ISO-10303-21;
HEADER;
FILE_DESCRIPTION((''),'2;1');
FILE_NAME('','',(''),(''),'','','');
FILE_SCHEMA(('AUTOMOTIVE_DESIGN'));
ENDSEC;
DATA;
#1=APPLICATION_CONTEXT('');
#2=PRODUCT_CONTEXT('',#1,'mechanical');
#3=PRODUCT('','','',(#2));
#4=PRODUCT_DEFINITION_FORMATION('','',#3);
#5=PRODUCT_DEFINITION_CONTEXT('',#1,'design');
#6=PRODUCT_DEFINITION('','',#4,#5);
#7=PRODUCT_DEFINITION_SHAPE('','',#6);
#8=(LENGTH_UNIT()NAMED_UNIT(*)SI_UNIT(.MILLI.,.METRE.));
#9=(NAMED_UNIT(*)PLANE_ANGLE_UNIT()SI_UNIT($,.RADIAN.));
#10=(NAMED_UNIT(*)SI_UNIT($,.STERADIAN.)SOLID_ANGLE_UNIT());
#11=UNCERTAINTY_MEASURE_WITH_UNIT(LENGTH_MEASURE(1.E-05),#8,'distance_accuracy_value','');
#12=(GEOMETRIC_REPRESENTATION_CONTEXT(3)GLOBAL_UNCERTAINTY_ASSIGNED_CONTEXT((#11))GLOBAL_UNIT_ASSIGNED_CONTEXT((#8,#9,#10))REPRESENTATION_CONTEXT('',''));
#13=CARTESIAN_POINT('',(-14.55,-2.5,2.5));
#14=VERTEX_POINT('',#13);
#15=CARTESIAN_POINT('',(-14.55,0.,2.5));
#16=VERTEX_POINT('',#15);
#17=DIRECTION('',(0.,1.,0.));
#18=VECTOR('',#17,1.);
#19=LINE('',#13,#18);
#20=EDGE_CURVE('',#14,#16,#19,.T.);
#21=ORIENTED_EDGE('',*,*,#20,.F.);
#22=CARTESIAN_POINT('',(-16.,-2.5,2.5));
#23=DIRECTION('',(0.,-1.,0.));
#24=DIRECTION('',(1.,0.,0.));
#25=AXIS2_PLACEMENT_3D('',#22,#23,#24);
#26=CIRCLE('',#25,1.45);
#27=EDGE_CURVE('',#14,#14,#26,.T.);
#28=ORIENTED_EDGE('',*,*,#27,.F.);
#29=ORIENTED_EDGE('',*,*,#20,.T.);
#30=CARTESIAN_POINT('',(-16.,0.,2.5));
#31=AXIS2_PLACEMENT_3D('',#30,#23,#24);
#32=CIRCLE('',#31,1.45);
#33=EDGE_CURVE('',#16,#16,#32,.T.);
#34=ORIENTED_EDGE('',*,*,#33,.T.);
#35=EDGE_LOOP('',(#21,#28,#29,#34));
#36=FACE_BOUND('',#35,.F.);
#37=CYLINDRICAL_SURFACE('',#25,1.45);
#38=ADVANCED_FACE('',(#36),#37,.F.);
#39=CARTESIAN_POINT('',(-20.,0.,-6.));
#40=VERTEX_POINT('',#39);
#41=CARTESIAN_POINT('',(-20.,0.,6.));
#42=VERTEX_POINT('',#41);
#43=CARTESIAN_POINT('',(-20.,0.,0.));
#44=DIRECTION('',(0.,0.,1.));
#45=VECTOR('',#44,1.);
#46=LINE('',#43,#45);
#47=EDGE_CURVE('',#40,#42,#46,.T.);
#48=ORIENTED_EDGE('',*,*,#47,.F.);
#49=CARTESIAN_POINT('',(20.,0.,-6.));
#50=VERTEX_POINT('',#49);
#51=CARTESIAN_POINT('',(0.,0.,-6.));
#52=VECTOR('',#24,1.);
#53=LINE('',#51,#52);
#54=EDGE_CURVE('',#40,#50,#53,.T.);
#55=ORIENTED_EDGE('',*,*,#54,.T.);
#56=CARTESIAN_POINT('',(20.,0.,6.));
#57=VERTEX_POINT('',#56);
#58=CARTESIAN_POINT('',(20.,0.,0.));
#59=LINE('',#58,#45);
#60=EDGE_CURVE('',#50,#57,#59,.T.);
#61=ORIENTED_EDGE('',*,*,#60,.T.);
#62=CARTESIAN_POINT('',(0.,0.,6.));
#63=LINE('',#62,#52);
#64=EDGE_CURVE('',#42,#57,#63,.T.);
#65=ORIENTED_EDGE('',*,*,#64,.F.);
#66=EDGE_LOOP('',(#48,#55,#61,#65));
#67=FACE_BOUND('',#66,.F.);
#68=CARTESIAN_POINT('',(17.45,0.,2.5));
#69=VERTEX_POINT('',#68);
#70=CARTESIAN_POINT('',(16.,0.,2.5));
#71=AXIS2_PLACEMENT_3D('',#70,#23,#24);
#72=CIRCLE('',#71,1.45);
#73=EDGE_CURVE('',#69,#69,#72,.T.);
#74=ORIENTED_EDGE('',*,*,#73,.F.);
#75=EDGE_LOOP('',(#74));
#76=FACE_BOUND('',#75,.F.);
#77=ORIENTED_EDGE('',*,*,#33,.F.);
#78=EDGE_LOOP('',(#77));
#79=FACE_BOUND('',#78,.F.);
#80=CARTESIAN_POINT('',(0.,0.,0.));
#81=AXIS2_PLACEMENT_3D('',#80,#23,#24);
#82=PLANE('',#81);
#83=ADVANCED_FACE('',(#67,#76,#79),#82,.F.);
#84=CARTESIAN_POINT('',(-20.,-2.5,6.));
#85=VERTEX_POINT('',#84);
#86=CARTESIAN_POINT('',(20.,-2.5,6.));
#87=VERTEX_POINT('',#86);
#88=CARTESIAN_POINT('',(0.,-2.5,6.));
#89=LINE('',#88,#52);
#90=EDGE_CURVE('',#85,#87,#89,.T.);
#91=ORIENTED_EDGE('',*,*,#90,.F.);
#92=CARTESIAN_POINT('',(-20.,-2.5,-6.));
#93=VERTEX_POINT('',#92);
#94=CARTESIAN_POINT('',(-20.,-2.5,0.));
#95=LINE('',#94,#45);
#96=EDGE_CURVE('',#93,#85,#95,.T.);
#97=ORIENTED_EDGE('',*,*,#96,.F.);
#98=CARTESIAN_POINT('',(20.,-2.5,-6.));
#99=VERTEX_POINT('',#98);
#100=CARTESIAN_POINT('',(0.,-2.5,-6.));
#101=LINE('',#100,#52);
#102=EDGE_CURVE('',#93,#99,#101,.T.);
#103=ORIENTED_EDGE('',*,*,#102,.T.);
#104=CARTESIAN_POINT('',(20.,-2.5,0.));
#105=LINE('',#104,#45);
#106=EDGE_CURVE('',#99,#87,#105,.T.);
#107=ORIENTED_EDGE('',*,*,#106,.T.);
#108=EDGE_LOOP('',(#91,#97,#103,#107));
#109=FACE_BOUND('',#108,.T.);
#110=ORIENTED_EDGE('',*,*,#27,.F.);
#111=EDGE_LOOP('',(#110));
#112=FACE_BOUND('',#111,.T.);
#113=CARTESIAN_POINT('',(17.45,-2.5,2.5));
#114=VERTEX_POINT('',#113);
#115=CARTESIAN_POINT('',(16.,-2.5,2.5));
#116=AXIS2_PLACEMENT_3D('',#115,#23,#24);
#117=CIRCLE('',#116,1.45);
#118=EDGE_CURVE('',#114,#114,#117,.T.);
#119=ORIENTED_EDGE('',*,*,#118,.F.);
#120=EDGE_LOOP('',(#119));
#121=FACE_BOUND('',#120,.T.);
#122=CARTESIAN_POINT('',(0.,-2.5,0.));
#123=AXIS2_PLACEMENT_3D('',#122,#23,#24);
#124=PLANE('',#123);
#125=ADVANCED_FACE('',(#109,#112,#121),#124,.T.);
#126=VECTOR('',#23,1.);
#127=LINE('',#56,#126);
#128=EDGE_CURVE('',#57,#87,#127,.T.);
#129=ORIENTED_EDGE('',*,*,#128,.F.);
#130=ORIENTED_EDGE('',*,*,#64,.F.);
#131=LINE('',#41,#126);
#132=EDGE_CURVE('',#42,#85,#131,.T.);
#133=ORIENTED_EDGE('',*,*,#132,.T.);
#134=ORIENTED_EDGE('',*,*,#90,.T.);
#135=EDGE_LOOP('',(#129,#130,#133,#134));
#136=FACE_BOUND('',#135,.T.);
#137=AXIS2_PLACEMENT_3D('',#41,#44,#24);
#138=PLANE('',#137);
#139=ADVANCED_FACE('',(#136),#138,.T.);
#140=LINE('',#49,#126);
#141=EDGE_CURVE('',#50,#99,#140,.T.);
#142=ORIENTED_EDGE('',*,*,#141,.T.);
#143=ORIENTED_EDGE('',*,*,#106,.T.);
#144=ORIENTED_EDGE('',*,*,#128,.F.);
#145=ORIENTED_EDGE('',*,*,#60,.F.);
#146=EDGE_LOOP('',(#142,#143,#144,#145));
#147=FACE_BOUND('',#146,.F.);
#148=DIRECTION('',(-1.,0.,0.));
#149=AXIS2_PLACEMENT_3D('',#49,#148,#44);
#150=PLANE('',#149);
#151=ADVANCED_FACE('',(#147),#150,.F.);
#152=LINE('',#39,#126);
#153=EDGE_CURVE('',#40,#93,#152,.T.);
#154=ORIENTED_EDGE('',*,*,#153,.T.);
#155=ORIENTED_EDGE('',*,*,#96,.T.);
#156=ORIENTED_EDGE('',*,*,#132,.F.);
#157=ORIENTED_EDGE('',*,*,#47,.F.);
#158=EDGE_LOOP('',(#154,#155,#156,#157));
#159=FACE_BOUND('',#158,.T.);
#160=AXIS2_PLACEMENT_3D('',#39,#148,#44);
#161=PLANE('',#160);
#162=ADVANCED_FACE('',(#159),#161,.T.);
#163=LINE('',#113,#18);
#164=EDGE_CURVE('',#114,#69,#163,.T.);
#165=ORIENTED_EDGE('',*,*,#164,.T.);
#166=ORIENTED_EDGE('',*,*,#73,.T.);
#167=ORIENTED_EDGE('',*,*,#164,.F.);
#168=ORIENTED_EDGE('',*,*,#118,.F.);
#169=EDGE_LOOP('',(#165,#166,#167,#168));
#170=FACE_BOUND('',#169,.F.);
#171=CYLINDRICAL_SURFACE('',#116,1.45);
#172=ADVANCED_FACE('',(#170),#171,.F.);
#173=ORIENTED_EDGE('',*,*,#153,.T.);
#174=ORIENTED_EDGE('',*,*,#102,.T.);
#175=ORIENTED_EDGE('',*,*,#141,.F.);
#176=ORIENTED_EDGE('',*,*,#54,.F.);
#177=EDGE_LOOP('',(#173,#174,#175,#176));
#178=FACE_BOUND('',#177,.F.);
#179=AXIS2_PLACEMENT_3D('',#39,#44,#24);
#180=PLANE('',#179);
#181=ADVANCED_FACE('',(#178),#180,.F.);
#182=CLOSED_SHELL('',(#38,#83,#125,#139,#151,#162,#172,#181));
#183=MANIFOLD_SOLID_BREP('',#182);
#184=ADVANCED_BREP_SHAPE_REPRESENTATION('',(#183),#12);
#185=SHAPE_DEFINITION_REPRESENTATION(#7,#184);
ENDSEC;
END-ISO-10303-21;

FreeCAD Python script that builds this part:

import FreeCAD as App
import Part
import Sketcher

doc = App.newDocument("Part")
body = doc.addObject("PartDesign::Body", "Body")

# Sketch on XZ plane
sketch1 = doc.addObject("Sketcher::SketchObject", "Sketch")
body.addObject(sketch1)
sketch1.AttachmentSupport = (doc.XZ_Plane, [""])
sketch1.MapMode = "FlatFace"
sketch1.addGeometry([
    Part.LineSegment(App.Vector(-20, 6, 0), App.Vector(-20, -6, 0)),
    Part.LineSegment(App.Vector(-20, -6, 0), App.Vector(20, -6, 0)),
    Part.LineSegment(App.Vector(20, -6, 0), App.Vector(20, 6, 0)),
    Part.LineSegment(App.Vector(20, 6, 0), App.Vector(-20, 6, 0)),
], False)
sketch1.addConstraint([
    Sketcher.Constraint("Coincident", 0, 2, 1, 1),
    Sketcher.Constraint("Coincident", 1, 2, 2, 1),
    Sketcher.Constraint("Coincident", 2, 2, 3, 1),
    Sketcher.Constraint("Coincident", 3, 2, 0, 1),
    Sketcher.Constraint("Vertical", 0),
    Sketcher.Constraint("Horizontal", 1),
    Sketcher.Constraint("Vertical", 2),
    Sketcher.Constraint("Horizontal", 3),
    Sketcher.Constraint("Symmetric", 0, 2, 2, 2, -1, 1),
    Sketcher.Constraint("DistanceX", 1, 1, 1, 2, 40.0),
    Sketcher.Constraint("DistanceY", 0, 2, 0, 1, 12.0),
])
pad1 = doc.addObject("PartDesign::Pad", "Pad")
body.addObject(pad1)
pad1.Profile = sketch1
pad1.Length = 2.5

# Sketch on XZ plane
sketch2 = doc.addObject("Sketcher::SketchObject", "Sketch001")
body.addObject(sketch2)
sketch2.AttachmentSupport = (doc.XZ_Plane, [""])
sketch2.MapMode = "FlatFace"
sketch2.AttachmentOffset = App.Placement(App.Vector(0, 0, 2.5), App.Rotation())
sketch2.addGeometry([
    Part.Circle(App.Vector(-16, 2.5, 0), App.Vector(0, 0, 1), 1.4),
    Part.Circle(App.Vector(16, 2.5, 0), App.Vector(0, 0, 1), 1.4),
], False)
sketch2.addConstraint([
    Sketcher.Constraint("Equal", 0, 1),
    Sketcher.Constraint("Symmetric", 0, 3, 1, 3, -2),
    Sketcher.Constraint("Diameter", 0, 2.9),
    Sketcher.Constraint("DistanceX", 0, 3, -1, 1, 16.0),
    Sketcher.Constraint("DistanceY", -1, 1, 0, 3, 2.5),
])
pocket1 = doc.addObject("PartDesign::Pocket", "Pocket")
body.addObject(pocket1)
pocket1.Profile = sketch2
pocket1.Type = "ThroughAll"

doc.recompute()
